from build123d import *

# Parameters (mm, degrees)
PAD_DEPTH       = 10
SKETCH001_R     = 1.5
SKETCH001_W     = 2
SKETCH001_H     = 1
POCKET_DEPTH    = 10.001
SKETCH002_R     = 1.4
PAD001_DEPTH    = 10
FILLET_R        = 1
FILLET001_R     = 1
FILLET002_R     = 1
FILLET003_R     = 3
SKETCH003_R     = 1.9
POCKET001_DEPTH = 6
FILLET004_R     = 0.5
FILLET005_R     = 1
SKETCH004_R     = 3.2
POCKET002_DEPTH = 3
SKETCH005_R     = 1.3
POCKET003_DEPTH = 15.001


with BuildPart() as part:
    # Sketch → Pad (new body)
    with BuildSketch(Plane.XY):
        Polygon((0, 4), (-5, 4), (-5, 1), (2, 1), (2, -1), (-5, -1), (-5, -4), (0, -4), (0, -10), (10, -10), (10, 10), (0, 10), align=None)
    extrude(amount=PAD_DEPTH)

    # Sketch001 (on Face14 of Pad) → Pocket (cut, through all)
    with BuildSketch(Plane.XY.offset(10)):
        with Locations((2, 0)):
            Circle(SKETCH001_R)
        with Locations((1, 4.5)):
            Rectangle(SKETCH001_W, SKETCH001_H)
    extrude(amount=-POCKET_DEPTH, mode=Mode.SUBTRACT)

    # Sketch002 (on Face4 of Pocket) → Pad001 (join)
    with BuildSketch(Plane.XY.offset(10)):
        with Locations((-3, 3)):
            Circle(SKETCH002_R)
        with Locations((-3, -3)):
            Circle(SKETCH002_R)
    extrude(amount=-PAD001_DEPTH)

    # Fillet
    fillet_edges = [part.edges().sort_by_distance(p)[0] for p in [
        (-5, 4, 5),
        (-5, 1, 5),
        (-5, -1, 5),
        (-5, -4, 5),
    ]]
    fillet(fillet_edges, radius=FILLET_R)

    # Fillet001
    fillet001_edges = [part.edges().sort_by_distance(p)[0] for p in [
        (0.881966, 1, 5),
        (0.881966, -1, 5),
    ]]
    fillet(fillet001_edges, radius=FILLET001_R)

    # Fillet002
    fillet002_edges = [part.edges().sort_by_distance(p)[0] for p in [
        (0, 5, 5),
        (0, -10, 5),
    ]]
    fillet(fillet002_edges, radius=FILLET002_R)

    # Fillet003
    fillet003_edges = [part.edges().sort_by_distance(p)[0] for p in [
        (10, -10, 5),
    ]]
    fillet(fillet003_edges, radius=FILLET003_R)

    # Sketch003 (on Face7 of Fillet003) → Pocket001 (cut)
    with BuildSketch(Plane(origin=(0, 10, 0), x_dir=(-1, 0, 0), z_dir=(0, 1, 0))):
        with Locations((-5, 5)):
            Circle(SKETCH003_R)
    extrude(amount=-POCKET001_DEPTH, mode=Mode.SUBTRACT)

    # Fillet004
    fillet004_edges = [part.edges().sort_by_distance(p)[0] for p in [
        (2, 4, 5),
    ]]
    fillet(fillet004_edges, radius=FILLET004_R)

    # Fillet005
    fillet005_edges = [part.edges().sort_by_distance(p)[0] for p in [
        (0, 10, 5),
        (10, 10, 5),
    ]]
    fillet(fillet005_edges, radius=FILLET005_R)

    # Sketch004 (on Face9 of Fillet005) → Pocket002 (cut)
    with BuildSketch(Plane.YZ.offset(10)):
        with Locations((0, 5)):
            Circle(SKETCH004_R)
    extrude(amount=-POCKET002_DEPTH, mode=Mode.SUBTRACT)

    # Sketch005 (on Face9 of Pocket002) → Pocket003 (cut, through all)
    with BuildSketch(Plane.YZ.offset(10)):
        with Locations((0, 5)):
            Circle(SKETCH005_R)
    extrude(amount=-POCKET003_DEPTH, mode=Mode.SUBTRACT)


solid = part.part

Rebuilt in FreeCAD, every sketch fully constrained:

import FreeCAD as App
import Part
import Sketcher

V = App.Vector


def edges_at(feature, points):
    """Names of the edges that pass closest to the given points."""
    edges = feature.Shape.Edges
    near = lambda p: min(range(len(edges)), key=lambda i: edges[i].distToShape(Part.Vertex(*p))[0])
    return sorted({f"Edge{near(p) + 1}" for p in points})


def add_polygon(sketch, points):
    """Adds a closed chain of lines whose ends are joined by coincident constraints."""
    first, n = sketch.GeometryCount, len(points)
    for a, b in zip(points, points[1:] + points[:1]):
        sketch.addGeometry(Part.LineSegment(App.Vector(*a, 0), App.Vector(*b, 0)), False)
    for i in range(n):
        sketch.addConstraint(Sketcher.Constraint("Coincident", first + i, 2, first + (i + 1) % n, 1))

doc = App.newDocument("Part")
body = doc.addObject("PartDesign::Body", "Body")

# Sketch on XY plane
sketch1 = body.newObject("Sketcher::SketchObject", "Sketch")
sketch1.AttachmentSupport = (doc.getObject("XY_Plane"), [""])
sketch1.MapMode = "FlatFace"
add_polygon(sketch1, [(0, 4), (-5, 4), (-5, 1), (2, 1), (2, -1), (-5, -1), (-5, -4), (0, -4), (0, -10), (10, -10), (10, 10), (0, 10)])  # lines 0-11
sketch1.addConstraint(Sketcher.Constraint("Horizontal", 0))
sketch1.addConstraint(Sketcher.Constraint("Vertical", 1))
sketch1.addConstraint(Sketcher.Constraint("Horizontal", 2))
sketch1.addConstraint(Sketcher.Constraint("Vertical", 3))
sketch1.addConstraint(Sketcher.Constraint("Horizontal", 4))
sketch1.addConstraint(Sketcher.Constraint("Vertical", 5))
sketch1.addConstraint(Sketcher.Constraint("Horizontal", 6))
sketch1.addConstraint(Sketcher.Constraint("Vertical", 7))
sketch1.addConstraint(Sketcher.Constraint("Horizontal", 8))
sketch1.addConstraint(Sketcher.Constraint("Vertical", 9))
sketch1.addConstraint(Sketcher.Constraint("Horizontal", 10))
sketch1.addConstraint(Sketcher.Constraint("Vertical", 11))
sketch1.addConstraint(Sketcher.Constraint("Symmetric", 7, 2, 10, 2, -1, 1))
sketch1.addConstraint(Sketcher.Constraint("Symmetric", 1, 2, 4, 2, -1))
sketch1.addConstraint(Sketcher.Constraint("Symmetric", 6, 2, 11, 2, -1))
sketch1.addConstraint(Sketcher.Constraint("DistanceX", 0, 2, 0, 1, 5.0))
sketch1.addConstraint(Sketcher.Constraint("DistanceX", 2, 1, 2, 2, 7.0))
sketch1.addConstraint(Sketcher.Constraint("DistanceX", 8, 1, 8, 2, 10.0))
sketch1.addConstraint(Sketcher.Constraint("DistanceY", 1, 2, 1, 1, 3.0))
sketch1.addConstraint(Sketcher.Constraint("DistanceY", 3, 2, 3, 1, 2.0))
sketch1.addConstraint(Sketcher.Constraint("DistanceY", 7, 2, 7, 1, 6.0))
pad1 = body.newObject("PartDesign::Pad", "Pad")
pad1.Profile = sketch1
pad1.Length = 10

# Sketch on XY plane
sketch2 = body.newObject("Sketcher::SketchObject", "Sketch001")
sketch2.AttachmentSupport = (doc.getObject("XY_Plane"), [""])
sketch2.MapMode = "FlatFace"
sketch2.AttachmentOffset = App.Placement(V(0, 0, 10), App.Rotation())
sketch2.addGeometry(Part.Circle(V(2, 0, 0), V(0, 0, 1), 1.5), False)  # 0
add_polygon(sketch2, [(0, 5), (0, 4), (2, 4), (2, 5)])  # lines 1-4
sketch2.addConstraint(Sketcher.Constraint("Vertical", 1))
sketch2.addConstraint(Sketcher.Constraint("Horizontal", 2))
sketch2.addConstraint(Sketcher.Constraint("Vertical", 3))
sketch2.addConstraint(Sketcher.Constraint("Horizontal", 4))
sketch2.addConstraint(Sketcher.Constraint("PointOnObject", 0, 3, -1))
sketch2.addConstraint(Sketcher.Constraint("PointOnObject", 1, 2, -2))
sketch2.addConstraint(Sketcher.Constraint("Vertical", 0, 3, 2, 2))
sketch2.addConstraint(Sketcher.Constraint("Diameter", 0, 3.0))
sketch2.addConstraint(Sketcher.Constraint("DistanceX", 2, 1, 2, 2, 2.0))
sketch2.addConstraint(Sketcher.Constraint("DistanceY", 1, 2, 1, 1, 1.0))
sketch2.addConstraint(Sketcher.Constraint("DistanceY", -1, 1, 1, 2, 4.0))
pocket1 = body.newObject("PartDesign::Pocket", "Pocket")
pocket1.Profile = sketch2
pocket1.Type = "ThroughAll"

# Sketch on XY plane
sketch3 = body.newObject("Sketcher::SketchObject", "Sketch002")
sketch3.AttachmentSupport = (doc.getObject("XY_Plane"), [""])
sketch3.MapMode = "FlatFace"
sketch3.AttachmentOffset = App.Placement(V(0, 0, 10), App.Rotation())
sketch3.addGeometry(Part.Circle(V(-3, 3, 0), V(0, 0, 1), 1.4), False)
sketch3.addGeometry(Part.Circle(V(-3, -3, 0), V(0, 0, 1), 1.4), False)
sketch3.addConstraint(Sketcher.Constraint("Equal", 0, 1))
sketch3.addConstraint(Sketcher.Constraint("Symmetric", 0, 3, 1, 3, -1))
sketch3.addConstraint(Sketcher.Constraint("Diameter", 0, 2.8))
sketch3.addConstraint(Sketcher.Constraint("DistanceX", 0, 3, -1, 1, 3.0))
sketch3.addConstraint(Sketcher.Constraint("DistanceY", -1, 1, 0, 3, 3.0))
pad2 = body.newObject("PartDesign::Pad", "Pad001")
pad2.Profile = sketch3
pad2.Length = 10
pad2.Reversed = True
doc.recompute()

fillet = body.newObject("PartDesign::Fillet", "Fillet")
fillet.Base = (pad2, edges_at(pad2, [
    (-5, 4, 5),
    (-5, 1, 5),
    (-5, -1, 5),
    (-5, -4, 5),
]))
fillet.Radius = 1
doc.recompute()

fillet2 = body.newObject("PartDesign::Fillet", "Fillet001")
fillet2.Base = (fillet, edges_at(fillet, [(0.882, 1, 5), (0.882, -1, 5)]))
fillet2.Radius = 1
doc.recompute()

fillet3 = body.newObject("PartDesign::Fillet", "Fillet002")
fillet3.Base = (fillet2, edges_at(fillet2, [(0, 5, 5), (0, -10, 5)]))
fillet3.Radius = 1
doc.recompute()

fillet4 = body.newObject("PartDesign::Fillet", "Fillet003")
fillet4.Base = (fillet3, edges_at(fillet3, [(10, -10, 5)]))
fillet4.Radius = 3

# Sketch on XZ plane
sketch4 = body.newObject("Sketcher::SketchObject", "Sketch003")
sketch4.AttachmentSupport = (doc.getObject("XZ_Plane"), [""])
sketch4.MapMode = "FlatFace"
sketch4.AttachmentOffset = App.Placement(V(0, 0, -10), App.Rotation())
sketch4.addGeometry(Part.Circle(V(5, 5, 0), V(0, 0, 1), 1.9), False)
sketch4.addConstraint(Sketcher.Constraint("Diameter", 0, 3.8))
sketch4.addConstraint(Sketcher.Constraint("DistanceX", -1, 1, 0, 3, 5.0))
sketch4.addConstraint(Sketcher.Constraint("DistanceY", -1, 1, 0, 3, 5.0))
pocket2 = body.newObject("PartDesign::Pocket", "Pocket001")
pocket2.Profile = sketch4
pocket2.Length = 6
pocket2.Reversed = True
doc.recompute()

fillet5 = body.newObject("PartDesign::Fillet", "Fillet004")
fillet5.Base = (pocket2, edges_at(pocket2, [(2, 4, 5)]))
fillet5.Radius = 0.5
doc.recompute()

fillet6 = body.newObject("PartDesign::Fillet", "Fillet005")
fillet6.Base = (fillet5, edges_at(fillet5, [(0, 10, 5), (10, 10, 5)]))
fillet6.Radius = 1

# Sketch on YZ plane
sketch5 = body.newObject("Sketcher::SketchObject", "Sketch004")
sketch5.AttachmentSupport = (doc.getObject("YZ_Plane"), [""])
sketch5.MapMode = "FlatFace"
sketch5.AttachmentOffset = App.Placement(V(0, 0, 10), App.Rotation())
sketch5.addGeometry(Part.Circle(V(0, 5, 0), V(0, 0, 1), 3.2), False)
sketch5.addConstraint(Sketcher.Constraint("PointOnObject", 0, 3, -2))
sketch5.addConstraint(Sketcher.Constraint("Diameter", 0, 6.4))
sketch5.addConstraint(Sketcher.Constraint("DistanceY", -1, 1, 0, 3, 5.0))
pocket3 = body.newObject("PartDesign::Pocket", "Pocket002")
pocket3.Profile = sketch5
pocket3.Length = 3

# Sketch on YZ plane
sketch6 = body.newObject("Sketcher::SketchObject", "Sketch005")
sketch6.AttachmentSupport = (doc.getObject("YZ_Plane"), [""])
sketch6.MapMode = "FlatFace"
sketch6.AttachmentOffset = App.Placement(V(0, 0, 10), App.Rotation())
sketch6.addGeometry(Part.Circle(V(0, 5, 0), V(0, 0, 1), 1.3), False)
sketch6.addConstraint(Sketcher.Constraint("PointOnObject", 0, 3, -2))
sketch6.addConstraint(Sketcher.Constraint("Diameter", 0, 2.6))
sketch6.addConstraint(Sketcher.Constraint("DistanceY", -1, 1, 0, 3, 5.0))
pocket4 = body.newObject("PartDesign::Pocket", "Pocket003")
pocket4.Profile = sketch6
pocket4.Type = "ThroughAll"

doc.recompute()
